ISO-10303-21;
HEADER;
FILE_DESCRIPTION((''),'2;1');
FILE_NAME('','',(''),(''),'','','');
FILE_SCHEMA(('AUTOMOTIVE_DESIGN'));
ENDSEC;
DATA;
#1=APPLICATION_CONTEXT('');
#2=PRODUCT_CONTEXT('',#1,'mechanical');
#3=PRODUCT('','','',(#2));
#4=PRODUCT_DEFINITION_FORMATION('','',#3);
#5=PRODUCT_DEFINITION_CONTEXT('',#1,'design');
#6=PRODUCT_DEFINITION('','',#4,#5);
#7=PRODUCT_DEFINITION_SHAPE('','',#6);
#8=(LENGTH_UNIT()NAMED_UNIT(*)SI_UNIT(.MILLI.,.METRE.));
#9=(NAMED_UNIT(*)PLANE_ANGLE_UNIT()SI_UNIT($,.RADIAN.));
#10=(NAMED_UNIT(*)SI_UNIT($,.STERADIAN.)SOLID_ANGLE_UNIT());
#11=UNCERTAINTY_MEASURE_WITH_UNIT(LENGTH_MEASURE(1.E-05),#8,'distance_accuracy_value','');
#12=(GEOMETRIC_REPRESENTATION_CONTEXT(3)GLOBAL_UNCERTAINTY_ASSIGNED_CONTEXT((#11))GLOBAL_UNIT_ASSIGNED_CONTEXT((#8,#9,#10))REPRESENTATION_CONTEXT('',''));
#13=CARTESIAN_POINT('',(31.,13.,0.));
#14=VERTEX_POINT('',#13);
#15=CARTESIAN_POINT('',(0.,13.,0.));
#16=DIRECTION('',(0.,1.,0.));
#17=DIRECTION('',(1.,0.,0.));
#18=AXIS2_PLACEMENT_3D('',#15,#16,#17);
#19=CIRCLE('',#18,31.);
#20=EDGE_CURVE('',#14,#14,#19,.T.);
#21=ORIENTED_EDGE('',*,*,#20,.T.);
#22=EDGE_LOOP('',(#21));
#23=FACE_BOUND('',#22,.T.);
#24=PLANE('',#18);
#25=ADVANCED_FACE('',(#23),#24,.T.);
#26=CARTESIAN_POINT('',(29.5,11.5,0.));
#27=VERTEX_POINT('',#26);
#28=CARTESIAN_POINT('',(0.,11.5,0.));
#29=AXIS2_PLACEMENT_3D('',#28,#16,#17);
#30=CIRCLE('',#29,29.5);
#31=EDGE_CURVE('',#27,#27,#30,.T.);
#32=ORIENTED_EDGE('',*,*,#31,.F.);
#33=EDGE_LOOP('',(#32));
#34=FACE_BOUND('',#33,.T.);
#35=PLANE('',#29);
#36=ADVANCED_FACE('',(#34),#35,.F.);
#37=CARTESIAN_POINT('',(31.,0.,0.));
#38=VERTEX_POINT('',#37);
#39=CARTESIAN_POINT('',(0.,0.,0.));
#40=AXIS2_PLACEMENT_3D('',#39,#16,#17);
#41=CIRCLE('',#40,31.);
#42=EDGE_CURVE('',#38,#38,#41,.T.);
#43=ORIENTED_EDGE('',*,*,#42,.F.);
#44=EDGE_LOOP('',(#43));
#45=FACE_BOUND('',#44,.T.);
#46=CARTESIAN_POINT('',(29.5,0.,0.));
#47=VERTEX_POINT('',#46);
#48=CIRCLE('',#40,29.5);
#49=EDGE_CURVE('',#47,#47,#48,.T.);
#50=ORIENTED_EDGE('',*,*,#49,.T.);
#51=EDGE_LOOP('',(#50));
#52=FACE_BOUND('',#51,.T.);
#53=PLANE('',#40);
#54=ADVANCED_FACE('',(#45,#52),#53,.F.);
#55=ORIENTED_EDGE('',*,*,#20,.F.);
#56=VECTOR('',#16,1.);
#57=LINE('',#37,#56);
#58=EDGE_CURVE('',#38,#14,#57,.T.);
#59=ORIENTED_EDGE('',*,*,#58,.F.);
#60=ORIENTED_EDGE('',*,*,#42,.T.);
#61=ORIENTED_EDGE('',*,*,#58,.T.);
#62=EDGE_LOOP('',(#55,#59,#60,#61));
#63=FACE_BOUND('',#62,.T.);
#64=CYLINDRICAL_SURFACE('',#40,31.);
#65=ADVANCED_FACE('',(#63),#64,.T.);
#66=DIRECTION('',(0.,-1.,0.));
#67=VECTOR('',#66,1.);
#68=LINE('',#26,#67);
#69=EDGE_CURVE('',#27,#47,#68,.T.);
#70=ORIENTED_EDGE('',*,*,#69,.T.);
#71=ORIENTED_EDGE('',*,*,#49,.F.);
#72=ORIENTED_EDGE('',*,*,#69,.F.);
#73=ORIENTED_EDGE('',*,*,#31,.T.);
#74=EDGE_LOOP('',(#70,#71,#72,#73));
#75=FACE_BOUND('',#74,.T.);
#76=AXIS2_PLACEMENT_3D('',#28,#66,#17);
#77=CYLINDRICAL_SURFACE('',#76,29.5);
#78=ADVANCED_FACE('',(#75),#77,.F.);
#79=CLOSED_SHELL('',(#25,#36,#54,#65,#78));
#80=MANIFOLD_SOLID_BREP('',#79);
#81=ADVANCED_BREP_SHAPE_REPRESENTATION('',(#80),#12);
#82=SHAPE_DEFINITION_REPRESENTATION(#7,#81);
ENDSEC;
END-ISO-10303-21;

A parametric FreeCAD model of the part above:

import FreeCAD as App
import Part
import Sketcher
from FreeCAD import Vector
Q = App.Units.Quantity

doc = App.newDocument("Part")
body = doc.addObject("PartDesign::Body", "Body")

sketch1 = body.newObject("Sketcher::SketchObject", "Sketch")
sketch1.AttachmentSupport = (doc.getObject("XY_Plane"), [""])
sketch1.MapMode = "FlatFace"
sketch1.addGeometry(Part.LineSegment(Vector(29.5, 0, 0), Vector(31, 0, 0)), False)
sketch1.addGeometry(Part.LineSegment(Vector(31, 0, 0), Vector(31, 13, 0)), False)
sketch1.addGeometry(Part.LineSegment(Vector(31, 13, 0), Vector(0, 13, 0)), False)
sketch1.addGeometry(Part.LineSegment(Vector(0, 13, 0), Vector(0, 11.5, 0)), False)
sketch1.addGeometry(Part.LineSegment(Vector(0, 11.5, 0), Vector(29.5, 11.5, 0)), False)
sketch1.addGeometry(Part.LineSegment(Vector(29.5, 11.5, 0), Vector(29.5, 0, 0)), False)
sketch1.addConstraint(Sketcher.Constraint("Coincident", 0, 2, 1, 1))
sketch1.addConstraint(Sketcher.Constraint("Coincident", 1, 2, 2, 1))
sketch1.addConstraint(Sketcher.Constraint("Coincident", 2, 2, 3, 1))
sketch1.addConstraint(Sketcher.Constraint("Coincident", 3, 2, 4, 1))
sketch1.addConstraint(Sketcher.Constraint("Coincident", 4, 2, 5, 1))
sketch1.addConstraint(Sketcher.Constraint("Coincident", 5, 2, 0, 1))
sketch1.addConstraint(Sketcher.Constraint("Horizontal", 0))
sketch1.addConstraint(Sketcher.Constraint("Vertical", 1))
sketch1.addConstraint(Sketcher.Constraint("Horizontal", 2))
sketch1.addConstraint(Sketcher.Constraint("Vertical", 3))
sketch1.addConstraint(Sketcher.Constraint("Horizontal", 4))
sketch1.addConstraint(Sketcher.Constraint("Vertical", 5))
sketch1.addConstraint(Sketcher.Constraint("PointOnObject", 0, 2, -1))
sketch1.addConstraint(Sketcher.Constraint("PointOnObject", 2, 2, -2))
sketch1.addConstraint(Sketcher.Constraint("Equal", 0, 3))
sketch1.addConstraint(Sketcher.Constraint("DistanceX", 2, 2, 2, 1, Q("31 mm")))
sketch1.addConstraint(Sketcher.Constraint("DistanceY", 1, 1, 1, 2, Q("13 mm")))
sketch1.addConstraint(Sketcher.Constraint("DistanceX", 0, 1, 0, 2, Q("1.5 mm")))
revolution = body.newObject("PartDesign::Revolution", "Revolution")
revolution.Profile = sketch1
revolution.ReferenceAxis = (sketch1, ["V_Axis"])
revolution.Angle = 360

doc.recompute()
